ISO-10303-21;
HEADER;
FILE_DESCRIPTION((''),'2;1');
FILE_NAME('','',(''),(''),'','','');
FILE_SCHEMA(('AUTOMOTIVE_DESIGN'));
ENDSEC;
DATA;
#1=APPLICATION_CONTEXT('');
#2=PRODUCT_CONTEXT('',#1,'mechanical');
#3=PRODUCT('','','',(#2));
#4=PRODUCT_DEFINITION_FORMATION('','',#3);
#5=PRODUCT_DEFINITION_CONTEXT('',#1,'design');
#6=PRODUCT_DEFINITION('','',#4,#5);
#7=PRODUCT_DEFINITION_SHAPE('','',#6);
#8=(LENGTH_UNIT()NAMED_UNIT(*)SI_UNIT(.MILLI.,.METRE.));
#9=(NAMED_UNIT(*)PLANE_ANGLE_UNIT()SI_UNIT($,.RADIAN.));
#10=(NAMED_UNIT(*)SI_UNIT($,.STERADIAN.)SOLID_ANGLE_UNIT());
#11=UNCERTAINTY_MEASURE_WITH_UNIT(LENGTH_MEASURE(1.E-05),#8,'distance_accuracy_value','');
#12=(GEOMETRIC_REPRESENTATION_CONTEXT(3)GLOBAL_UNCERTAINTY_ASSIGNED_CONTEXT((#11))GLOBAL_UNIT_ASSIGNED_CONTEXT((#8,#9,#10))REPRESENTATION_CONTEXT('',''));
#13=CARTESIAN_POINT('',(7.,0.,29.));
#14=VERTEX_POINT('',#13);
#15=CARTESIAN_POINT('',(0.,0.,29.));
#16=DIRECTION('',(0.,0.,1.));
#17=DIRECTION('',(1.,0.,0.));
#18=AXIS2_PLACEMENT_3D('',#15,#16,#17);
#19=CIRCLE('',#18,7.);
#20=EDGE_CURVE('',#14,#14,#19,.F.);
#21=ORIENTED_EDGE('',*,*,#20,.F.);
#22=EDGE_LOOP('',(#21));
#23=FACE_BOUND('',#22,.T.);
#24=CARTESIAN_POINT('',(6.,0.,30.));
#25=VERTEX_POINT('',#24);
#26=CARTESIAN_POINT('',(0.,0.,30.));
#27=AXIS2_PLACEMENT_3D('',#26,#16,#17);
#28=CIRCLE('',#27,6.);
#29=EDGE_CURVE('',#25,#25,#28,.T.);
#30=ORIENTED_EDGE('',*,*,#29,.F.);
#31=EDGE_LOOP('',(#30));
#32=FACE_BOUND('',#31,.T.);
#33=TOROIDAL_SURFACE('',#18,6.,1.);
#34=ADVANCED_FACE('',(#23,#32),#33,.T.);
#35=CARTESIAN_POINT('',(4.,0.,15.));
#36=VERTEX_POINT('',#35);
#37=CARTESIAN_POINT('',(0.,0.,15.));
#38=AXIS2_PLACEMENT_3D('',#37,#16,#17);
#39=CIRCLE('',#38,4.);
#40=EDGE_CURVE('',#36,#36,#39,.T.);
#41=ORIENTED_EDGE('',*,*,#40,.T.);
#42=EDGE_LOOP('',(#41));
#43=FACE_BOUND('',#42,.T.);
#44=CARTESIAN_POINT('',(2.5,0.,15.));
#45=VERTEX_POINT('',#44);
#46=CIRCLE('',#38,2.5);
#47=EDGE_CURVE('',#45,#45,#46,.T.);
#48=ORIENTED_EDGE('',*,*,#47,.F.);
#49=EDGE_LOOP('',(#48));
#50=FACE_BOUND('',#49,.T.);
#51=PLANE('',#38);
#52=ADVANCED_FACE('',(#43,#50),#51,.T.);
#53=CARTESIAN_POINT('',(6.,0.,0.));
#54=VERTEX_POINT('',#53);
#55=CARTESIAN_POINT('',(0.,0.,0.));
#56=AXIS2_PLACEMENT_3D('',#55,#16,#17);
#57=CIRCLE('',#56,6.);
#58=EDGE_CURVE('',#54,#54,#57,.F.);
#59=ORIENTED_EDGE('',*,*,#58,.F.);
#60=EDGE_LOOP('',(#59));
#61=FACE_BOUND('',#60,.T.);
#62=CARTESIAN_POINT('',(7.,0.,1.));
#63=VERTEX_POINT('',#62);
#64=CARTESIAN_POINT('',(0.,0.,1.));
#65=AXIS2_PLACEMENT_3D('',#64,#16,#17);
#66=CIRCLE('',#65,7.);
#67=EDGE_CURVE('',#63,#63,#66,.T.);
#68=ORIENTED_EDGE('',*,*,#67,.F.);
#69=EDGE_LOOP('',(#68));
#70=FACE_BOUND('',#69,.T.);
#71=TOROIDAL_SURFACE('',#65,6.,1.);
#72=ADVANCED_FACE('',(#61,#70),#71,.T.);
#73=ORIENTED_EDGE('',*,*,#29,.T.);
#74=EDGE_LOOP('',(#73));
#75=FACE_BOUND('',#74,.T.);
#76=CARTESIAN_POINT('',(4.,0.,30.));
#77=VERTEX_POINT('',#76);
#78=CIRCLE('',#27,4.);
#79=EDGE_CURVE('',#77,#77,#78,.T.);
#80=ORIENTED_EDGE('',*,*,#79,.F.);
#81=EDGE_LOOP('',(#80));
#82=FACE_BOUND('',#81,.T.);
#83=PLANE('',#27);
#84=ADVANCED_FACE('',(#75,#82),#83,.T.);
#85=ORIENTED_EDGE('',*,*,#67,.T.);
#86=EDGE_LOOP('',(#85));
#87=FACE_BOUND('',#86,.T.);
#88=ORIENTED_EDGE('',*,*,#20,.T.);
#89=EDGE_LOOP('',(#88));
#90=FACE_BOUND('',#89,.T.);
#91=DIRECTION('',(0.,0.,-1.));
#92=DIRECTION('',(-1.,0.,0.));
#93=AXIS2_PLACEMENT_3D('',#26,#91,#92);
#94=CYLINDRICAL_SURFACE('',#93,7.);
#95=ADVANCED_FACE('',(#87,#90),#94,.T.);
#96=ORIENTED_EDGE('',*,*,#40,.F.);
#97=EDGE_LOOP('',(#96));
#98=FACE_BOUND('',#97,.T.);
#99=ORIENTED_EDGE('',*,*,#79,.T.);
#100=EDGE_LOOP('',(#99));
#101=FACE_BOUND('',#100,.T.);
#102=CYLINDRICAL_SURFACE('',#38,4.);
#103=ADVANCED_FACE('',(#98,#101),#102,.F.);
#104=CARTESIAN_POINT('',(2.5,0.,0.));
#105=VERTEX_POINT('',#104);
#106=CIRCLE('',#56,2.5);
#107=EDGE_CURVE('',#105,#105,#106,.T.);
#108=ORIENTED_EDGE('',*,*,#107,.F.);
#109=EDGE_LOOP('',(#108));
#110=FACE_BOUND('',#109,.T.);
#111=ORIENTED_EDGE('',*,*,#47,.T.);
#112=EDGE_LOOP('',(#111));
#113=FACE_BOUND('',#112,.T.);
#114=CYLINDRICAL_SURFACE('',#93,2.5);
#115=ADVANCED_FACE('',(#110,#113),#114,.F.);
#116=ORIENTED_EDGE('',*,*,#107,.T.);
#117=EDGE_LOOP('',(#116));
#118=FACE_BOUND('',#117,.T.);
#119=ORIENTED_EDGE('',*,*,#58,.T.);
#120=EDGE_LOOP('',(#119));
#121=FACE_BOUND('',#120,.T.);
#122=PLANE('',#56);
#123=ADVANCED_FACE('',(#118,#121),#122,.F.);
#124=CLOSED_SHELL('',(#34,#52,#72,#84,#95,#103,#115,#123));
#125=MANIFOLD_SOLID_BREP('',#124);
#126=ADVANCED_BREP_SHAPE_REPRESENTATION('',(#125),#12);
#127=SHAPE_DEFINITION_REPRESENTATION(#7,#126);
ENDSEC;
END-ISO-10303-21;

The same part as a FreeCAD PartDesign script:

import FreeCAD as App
import Part
import Sketcher
from FreeCAD import Vector


def edges_at(feature, points):
    """Names of the edges that pass closest to the given points."""
    edges = feature.Shape.Edges
    near = lambda p: min(range(len(edges)), key=lambda i: edges[i].distToShape(Part.Vertex(*p))[0])
    return sorted({f"Edge{near(p) + 1}" for p in points})

doc = App.newDocument("Part")
body = doc.addObject("PartDesign::Body", "Body")

sketch1 = doc.addObject("Sketcher::SketchObject", "Sketch")
body.addObject(sketch1)
sketch1.AttachmentSupport = (doc.XY_Plane, [""])
sketch1.MapMode = "FlatFace"
sketch1.addGeometry(Part.Circle(Vector(0, 0, 0), Vector(0, 0, 1), 7), False)
sketch1.addGeometry(Part.Circle(Vector(0, 0, 0), Vector(0, 0, 1), 2.5), False)
sketch1.addConstraint(Sketcher.Constraint("Coincident", 0, 3, -1, 1))
sketch1.addConstraint(Sketcher.Constraint("Coincident", 1, 3, -1, 1))
sketch1.addConstraint(Sketcher.Constraint("Diameter", 0, 14.0))
sketch1.addConstraint(Sketcher.Constraint("Diameter", 1, 5.0))
pad1 = doc.addObject("PartDesign::Pad", "Pad")
body.addObject(pad1)
pad1.Profile = sketch1
pad1.Length = 30

sketch2 = doc.addObject("Sketcher::SketchObject", "Sketch001")
body.addObject(sketch2)
sketch2.AttachmentSupport = (doc.XY_Plane, [""])
sketch2.MapMode = "FlatFace"
sketch2.AttachmentOffset = App.Placement(Vector(0, 0, 30), App.Rotation())
sketch2.addGeometry(Part.Circle(Vector(0, 0, 0), Vector(0, 0, 1), 4), False)
sketch2.addConstraint(Sketcher.Constraint("Coincident", 0, 3, -1, 1))
sketch2.addConstraint(Sketcher.Constraint("Diameter", 0, 8.0))
pocket1 = doc.addObject("PartDesign::Pocket", "Pocket")
body.addObject(pocket1)
pocket1.Profile = sketch2
pocket1.Length = 15
doc.recompute()

fillet = doc.addObject("PartDesign::Fillet", "Fillet")
body.addObject(fillet)
fillet.Base = (pocket1, edges_at(pocket1, [(-7, 0, 0), (-7, 0, 30)]))
fillet.Radius = 1

doc.recompute()
